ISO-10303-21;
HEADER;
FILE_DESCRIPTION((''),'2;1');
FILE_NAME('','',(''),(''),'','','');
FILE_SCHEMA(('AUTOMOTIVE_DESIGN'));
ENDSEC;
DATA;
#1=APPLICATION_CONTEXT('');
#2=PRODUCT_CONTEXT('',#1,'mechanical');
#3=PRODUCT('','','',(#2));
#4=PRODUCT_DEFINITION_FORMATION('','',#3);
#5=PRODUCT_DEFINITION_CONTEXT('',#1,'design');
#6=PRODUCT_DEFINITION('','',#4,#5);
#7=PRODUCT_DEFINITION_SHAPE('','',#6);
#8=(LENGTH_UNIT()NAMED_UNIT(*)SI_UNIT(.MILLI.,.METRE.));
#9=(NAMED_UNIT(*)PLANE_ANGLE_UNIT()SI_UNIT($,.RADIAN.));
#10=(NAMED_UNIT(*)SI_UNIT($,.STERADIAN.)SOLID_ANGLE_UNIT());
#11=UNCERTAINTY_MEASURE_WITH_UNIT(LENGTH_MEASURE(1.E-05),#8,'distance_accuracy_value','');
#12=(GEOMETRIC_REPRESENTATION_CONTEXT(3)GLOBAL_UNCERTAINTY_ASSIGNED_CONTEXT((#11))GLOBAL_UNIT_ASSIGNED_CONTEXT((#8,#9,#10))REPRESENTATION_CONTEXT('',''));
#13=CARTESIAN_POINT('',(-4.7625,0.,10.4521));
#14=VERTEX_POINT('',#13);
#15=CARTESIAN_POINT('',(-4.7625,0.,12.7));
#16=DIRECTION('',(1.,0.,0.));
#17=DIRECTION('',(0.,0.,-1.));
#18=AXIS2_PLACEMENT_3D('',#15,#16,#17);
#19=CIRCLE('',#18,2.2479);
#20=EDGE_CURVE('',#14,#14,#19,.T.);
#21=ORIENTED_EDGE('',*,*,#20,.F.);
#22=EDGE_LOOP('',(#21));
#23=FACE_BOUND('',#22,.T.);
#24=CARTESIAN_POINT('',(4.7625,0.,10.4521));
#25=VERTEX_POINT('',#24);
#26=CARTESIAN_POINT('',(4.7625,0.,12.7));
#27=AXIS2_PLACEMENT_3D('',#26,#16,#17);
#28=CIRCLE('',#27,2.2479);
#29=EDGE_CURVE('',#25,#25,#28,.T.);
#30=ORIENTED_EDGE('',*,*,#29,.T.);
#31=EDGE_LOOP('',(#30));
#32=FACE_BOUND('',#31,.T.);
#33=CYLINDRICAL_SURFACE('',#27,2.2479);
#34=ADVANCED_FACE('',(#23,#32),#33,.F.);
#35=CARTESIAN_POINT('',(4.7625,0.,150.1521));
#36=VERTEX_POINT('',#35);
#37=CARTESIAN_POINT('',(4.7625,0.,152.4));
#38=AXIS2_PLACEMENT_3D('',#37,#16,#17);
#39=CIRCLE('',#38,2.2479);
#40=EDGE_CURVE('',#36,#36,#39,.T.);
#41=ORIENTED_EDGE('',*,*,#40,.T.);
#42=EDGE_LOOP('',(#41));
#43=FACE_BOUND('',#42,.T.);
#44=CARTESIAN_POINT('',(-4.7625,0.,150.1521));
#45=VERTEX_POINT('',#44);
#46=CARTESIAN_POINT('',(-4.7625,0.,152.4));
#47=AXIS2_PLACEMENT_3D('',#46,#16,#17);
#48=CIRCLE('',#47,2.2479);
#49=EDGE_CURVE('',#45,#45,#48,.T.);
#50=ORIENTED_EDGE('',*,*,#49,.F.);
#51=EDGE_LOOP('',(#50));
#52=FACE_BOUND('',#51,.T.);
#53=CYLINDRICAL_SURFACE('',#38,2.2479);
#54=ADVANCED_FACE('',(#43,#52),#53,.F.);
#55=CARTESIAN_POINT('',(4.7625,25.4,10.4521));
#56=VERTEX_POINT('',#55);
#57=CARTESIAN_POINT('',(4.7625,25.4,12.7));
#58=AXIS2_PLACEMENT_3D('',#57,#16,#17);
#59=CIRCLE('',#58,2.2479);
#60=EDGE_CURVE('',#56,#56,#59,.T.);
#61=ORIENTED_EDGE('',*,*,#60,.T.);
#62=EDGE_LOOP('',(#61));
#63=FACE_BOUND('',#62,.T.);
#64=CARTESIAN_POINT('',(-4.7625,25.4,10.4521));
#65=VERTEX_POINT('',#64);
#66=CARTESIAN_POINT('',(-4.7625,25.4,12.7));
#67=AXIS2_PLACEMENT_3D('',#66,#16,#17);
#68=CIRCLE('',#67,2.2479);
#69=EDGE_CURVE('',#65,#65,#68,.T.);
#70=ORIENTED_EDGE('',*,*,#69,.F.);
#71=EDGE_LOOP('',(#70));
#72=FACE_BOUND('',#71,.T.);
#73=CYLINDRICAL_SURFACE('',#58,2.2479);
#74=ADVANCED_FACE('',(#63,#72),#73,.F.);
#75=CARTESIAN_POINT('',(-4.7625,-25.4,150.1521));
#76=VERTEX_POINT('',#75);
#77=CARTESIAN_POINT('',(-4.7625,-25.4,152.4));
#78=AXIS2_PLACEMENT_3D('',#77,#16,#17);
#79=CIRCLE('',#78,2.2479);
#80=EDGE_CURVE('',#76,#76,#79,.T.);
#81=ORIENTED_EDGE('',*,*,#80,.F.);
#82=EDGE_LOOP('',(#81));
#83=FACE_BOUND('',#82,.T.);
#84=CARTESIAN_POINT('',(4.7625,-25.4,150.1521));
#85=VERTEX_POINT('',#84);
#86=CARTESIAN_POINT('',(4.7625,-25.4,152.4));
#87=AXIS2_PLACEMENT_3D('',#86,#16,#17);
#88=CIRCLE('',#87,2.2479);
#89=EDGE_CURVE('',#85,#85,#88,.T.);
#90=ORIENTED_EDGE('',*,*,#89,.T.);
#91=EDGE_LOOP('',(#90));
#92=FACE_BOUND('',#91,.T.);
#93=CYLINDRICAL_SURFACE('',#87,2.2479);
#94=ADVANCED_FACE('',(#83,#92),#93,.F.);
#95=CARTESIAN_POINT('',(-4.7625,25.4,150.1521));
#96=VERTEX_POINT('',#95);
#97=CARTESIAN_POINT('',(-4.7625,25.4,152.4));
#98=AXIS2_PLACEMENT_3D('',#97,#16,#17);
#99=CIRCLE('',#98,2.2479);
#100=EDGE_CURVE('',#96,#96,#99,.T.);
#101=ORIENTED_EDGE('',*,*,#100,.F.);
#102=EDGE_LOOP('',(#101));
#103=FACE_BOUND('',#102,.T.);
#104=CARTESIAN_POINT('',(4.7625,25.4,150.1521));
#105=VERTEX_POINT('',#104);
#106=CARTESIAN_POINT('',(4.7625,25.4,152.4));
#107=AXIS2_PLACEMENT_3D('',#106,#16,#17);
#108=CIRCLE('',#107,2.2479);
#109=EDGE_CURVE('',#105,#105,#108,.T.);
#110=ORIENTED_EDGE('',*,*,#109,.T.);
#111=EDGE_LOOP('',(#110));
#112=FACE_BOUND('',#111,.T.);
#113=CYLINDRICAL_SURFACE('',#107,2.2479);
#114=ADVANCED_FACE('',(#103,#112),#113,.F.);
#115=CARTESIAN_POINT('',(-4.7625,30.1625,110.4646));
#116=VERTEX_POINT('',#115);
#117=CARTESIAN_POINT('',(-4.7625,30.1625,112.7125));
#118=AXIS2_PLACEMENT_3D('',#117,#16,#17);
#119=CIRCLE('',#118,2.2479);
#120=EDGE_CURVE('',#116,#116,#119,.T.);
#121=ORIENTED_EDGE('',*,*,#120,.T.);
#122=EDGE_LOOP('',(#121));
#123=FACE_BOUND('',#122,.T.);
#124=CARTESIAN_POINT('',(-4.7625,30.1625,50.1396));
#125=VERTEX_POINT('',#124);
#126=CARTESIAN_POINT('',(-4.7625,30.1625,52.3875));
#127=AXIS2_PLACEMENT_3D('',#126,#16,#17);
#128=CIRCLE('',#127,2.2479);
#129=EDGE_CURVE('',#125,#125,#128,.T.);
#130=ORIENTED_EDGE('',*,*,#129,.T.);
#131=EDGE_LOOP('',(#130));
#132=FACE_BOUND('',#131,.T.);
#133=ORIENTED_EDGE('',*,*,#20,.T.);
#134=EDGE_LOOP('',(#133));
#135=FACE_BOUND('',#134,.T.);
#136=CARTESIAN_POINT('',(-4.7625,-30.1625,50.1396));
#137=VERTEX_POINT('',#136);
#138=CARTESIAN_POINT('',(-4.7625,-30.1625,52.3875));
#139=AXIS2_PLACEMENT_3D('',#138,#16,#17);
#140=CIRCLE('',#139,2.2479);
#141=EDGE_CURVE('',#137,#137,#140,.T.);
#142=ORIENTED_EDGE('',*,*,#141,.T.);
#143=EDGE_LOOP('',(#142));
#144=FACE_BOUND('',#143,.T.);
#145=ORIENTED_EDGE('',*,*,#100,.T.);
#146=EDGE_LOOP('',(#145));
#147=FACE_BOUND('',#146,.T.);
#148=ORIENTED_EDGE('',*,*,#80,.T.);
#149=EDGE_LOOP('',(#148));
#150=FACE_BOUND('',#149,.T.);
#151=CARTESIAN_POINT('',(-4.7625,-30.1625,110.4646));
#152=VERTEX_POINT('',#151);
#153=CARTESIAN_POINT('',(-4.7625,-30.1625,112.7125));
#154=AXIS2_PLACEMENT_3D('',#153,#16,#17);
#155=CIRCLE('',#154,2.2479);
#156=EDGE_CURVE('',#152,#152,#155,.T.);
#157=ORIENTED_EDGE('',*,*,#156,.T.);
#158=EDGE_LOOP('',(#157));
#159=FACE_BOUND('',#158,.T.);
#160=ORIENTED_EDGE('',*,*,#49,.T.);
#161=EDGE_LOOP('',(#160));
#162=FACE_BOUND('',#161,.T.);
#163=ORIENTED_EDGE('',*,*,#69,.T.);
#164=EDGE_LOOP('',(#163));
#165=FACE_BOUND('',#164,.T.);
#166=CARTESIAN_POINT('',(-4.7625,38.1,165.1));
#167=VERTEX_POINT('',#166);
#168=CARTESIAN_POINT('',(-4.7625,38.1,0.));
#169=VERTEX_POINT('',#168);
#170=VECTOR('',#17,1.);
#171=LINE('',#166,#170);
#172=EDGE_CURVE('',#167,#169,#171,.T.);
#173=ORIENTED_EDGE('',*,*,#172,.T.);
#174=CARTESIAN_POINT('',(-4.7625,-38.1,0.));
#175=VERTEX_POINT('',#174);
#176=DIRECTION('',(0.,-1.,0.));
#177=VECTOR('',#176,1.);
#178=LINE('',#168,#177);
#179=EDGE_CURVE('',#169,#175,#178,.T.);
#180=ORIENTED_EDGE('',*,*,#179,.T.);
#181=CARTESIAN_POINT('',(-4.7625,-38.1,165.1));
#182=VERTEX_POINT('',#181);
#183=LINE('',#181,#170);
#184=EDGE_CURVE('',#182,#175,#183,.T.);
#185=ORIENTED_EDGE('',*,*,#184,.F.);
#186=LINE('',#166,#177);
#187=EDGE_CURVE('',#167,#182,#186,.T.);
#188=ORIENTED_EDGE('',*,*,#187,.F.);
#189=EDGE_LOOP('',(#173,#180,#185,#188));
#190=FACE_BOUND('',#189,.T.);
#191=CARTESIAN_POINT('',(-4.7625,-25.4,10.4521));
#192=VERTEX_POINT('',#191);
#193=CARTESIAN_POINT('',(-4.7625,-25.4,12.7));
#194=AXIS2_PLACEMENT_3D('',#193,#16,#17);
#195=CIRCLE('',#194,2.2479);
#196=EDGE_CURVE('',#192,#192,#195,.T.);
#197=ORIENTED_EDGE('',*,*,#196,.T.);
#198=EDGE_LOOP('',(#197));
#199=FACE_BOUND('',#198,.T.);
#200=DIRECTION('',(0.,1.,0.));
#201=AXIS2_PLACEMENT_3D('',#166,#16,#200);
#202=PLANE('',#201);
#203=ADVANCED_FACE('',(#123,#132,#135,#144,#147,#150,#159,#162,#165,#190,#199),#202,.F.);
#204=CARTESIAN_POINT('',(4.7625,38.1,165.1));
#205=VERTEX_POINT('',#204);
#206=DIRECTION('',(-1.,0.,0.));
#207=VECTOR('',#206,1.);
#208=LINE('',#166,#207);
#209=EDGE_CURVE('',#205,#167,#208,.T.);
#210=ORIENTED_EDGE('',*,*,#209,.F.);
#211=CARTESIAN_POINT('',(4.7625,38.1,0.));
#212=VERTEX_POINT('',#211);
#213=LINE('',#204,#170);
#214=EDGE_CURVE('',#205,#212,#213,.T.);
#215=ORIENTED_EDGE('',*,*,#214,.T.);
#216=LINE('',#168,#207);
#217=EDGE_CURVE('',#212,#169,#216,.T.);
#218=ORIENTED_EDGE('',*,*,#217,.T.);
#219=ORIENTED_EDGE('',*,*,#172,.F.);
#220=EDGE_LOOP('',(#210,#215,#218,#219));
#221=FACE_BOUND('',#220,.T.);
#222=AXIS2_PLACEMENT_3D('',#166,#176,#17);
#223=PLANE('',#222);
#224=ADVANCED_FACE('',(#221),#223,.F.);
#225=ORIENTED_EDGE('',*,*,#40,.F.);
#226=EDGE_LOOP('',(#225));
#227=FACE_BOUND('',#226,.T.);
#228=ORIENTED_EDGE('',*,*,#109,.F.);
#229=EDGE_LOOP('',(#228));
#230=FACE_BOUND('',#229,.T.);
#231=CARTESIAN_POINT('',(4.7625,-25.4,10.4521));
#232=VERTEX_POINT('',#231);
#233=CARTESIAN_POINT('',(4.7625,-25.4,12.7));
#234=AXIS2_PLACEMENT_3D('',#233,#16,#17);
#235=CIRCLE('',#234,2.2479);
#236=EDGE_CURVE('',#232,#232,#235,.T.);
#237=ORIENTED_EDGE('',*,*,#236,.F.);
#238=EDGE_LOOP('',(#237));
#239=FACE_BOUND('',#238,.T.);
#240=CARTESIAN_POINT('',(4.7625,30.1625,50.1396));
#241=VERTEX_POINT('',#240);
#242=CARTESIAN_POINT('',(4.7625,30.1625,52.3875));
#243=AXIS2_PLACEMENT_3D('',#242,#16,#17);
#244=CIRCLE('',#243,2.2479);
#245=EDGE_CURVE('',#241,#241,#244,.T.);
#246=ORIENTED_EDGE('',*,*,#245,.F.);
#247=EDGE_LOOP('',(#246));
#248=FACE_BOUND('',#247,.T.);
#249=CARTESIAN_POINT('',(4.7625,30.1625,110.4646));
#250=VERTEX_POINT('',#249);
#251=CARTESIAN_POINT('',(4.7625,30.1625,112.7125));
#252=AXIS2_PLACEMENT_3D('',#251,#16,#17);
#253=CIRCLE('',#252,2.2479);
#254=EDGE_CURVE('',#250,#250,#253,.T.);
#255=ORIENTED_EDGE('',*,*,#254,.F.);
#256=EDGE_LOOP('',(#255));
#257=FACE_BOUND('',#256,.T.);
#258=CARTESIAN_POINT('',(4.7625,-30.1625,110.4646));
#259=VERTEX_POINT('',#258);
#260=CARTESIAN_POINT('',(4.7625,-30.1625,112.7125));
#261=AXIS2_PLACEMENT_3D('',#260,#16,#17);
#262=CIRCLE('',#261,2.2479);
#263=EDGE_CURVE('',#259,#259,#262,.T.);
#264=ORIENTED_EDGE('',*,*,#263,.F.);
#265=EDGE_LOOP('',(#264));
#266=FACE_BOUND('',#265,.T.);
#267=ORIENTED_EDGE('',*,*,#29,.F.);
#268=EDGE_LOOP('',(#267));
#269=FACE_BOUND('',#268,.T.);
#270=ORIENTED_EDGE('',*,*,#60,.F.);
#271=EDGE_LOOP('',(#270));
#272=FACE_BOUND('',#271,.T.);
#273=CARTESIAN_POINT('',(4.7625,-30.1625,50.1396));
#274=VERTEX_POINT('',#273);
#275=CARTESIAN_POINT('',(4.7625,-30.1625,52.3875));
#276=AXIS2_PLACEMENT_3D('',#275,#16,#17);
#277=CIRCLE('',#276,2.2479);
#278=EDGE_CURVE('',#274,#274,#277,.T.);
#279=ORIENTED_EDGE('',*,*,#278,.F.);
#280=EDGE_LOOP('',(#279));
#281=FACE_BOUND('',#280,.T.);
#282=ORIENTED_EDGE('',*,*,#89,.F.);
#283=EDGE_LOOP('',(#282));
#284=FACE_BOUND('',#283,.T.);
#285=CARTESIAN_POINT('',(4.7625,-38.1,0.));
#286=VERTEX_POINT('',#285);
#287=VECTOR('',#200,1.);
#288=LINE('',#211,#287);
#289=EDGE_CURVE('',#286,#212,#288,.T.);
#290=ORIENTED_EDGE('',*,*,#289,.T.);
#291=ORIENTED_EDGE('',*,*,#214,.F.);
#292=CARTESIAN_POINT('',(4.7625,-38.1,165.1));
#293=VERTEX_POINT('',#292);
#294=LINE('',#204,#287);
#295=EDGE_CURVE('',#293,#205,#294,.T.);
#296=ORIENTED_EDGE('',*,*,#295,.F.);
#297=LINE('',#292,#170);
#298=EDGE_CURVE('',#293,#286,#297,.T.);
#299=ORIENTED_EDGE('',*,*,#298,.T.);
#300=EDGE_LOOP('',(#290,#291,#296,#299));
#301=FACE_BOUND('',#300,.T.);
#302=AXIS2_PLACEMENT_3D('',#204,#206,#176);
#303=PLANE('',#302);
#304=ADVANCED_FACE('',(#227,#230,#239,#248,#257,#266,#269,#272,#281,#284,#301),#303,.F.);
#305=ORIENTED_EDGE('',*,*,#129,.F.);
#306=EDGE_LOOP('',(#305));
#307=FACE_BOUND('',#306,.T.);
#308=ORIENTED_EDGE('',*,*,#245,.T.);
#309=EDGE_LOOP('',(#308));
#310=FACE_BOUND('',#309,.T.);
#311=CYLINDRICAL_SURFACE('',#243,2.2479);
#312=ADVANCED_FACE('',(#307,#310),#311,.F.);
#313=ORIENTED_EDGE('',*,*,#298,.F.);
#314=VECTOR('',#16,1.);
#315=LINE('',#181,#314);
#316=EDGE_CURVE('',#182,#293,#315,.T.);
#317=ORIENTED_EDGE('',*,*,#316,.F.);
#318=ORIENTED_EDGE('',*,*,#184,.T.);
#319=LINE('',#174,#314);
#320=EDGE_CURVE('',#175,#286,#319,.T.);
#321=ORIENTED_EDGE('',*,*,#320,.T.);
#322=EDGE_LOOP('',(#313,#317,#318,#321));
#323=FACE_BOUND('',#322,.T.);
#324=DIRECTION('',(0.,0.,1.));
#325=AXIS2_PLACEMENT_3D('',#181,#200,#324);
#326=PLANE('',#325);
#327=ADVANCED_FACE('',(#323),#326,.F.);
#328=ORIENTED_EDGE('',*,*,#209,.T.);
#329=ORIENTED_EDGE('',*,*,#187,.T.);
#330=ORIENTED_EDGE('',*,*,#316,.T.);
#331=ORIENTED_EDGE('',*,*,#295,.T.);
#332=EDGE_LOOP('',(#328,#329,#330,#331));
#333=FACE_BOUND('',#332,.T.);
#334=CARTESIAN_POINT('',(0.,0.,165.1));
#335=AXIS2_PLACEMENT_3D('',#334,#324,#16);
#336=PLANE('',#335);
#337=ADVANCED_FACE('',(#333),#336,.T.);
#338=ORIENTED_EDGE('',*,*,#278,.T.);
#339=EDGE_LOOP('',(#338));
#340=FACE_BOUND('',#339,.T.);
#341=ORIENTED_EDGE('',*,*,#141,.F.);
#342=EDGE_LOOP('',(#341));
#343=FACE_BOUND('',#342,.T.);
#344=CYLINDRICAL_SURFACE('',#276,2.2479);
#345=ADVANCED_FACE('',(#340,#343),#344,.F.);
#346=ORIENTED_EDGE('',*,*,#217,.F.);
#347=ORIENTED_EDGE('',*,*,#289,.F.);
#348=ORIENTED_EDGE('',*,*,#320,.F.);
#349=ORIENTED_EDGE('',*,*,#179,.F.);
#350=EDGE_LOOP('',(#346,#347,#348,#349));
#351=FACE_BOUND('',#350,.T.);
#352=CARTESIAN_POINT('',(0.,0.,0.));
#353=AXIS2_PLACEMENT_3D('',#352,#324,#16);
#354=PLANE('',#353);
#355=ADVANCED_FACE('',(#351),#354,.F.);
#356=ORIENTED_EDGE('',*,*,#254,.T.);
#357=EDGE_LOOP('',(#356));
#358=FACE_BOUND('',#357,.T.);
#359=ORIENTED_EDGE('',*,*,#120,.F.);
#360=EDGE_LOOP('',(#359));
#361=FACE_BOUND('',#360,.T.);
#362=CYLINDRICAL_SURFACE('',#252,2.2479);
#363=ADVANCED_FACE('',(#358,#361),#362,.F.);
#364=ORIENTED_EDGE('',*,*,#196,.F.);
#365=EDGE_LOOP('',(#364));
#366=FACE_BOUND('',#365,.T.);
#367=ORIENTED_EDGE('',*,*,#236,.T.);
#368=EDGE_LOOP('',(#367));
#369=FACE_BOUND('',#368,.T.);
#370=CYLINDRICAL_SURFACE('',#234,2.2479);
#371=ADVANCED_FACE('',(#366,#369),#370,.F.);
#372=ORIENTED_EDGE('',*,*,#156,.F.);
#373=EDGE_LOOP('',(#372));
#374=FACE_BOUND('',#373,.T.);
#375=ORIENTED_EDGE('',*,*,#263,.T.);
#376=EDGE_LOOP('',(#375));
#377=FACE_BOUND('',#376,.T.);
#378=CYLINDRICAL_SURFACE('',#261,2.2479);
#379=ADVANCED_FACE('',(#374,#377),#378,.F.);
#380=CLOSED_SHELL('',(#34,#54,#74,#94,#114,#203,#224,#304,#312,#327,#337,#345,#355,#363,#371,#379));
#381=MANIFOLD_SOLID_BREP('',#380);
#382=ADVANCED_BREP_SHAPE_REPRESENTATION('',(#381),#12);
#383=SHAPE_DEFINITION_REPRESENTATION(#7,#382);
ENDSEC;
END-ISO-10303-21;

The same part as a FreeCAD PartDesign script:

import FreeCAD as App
import Part
import Sketcher
from FreeCAD import Vector
Q = App.Units.Quantity


def add_polygon(sketch, points):
    """Adds a closed chain of lines whose ends are joined by coincident constraints."""
    first, n = sketch.GeometryCount, len(points)
    for a, b in zip(points, points[1:] + points[:1]):
        sketch.addGeometry(Part.LineSegment(App.Vector(*a, 0), App.Vector(*b, 0)), False)
    for i in range(n):
        sketch.addConstraint(Sketcher.Constraint("Coincident", first + i, 2, first + (i + 1) % n, 1))

doc = App.newDocument("Part")
body = doc.addObject("PartDesign::Body", "Body")

# Sketch on XY plane
sketch1 = body.newObject("Sketcher::SketchObject", "Sketch")
sketch1.AttachmentSupport = (doc.getObject("XY_Plane"), [""])
sketch1.MapMode = "FlatFace"
add_polygon(sketch1, [(-5, 38), (-5, -38), (5, -38), (5, 38)])  # lines 0-3
sketch1.addConstraint(Sketcher.Constraint("Vertical", 0))
sketch1.addConstraint(Sketcher.Constraint("Horizontal", 1))
sketch1.addConstraint(Sketcher.Constraint("Vertical", 2))
sketch1.addConstraint(Sketcher.Constraint("Horizontal", 3))
sketch1.addConstraint(Sketcher.Constraint("Symmetric", 0, 2, 2, 2, -1, 1))
sketch1.addConstraint(Sketcher.Constraint("DistanceY", 0, 2, 0, 1, Q("3 in")))
sketch1.addConstraint(Sketcher.Constraint("DistanceX", 1, 1, 1, 2, Q("0.375 in")))
pad1 = body.newObject("PartDesign::Pad", "Pad")
pad1.Profile = sketch1
pad1.Length = Q("6.5 in")

# Sketch on YZ plane
sketch2 = body.newObject("Sketcher::SketchObject", "Sketch001")
sketch2.AttachmentSupport = (doc.getObject("YZ_Plane"), [""])
sketch2.MapMode = "FlatFace"
sketch2.AttachmentOffset = App.Placement(Vector(0, 0, 0.1875 * 25.4), App.Rotation())
sketch2.addGeometry(Part.Circle(Vector(-30.2, 52.4, 0), Vector(0, 0, 1), 2.2), False)
sketch2.addGeometry(Part.Circle(Vector(30.2, 112.7, 0), Vector(0, 0, 1), 2.2), False)
sketch2.addGeometry(Part.Circle(Vector(-30.2, 112.7, 0), Vector(0, 0, 1), 2.2), False)
sketch2.addGeometry(Part.Circle(Vector(30.2, 52.4, 0), Vector(0, 0, 1), 2.2), False)
sketch2.addConstraint(Sketcher.Constraint("Equal", 0, 1))
sketch2.addConstraint(Sketcher.Constraint("Equal", 1, 2))
sketch2.addConstraint(Sketcher.Constraint("Equal", 2, 3))
sketch2.addConstraint(Sketcher.Constraint("Symmetric", 1, 3, 2, 3, -2))
sketch2.addConstraint(Sketcher.Constraint("Symmetric", 0, 3, 3, 3, -2))
sketch2.addConstraint(Sketcher.Constraint("Vertical", 0, 3, 2, 3))
sketch2.addConstraint(Sketcher.Constraint("Diameter", 0, Q("0.177 in")))
sketch2.addConstraint(Sketcher.Constraint("DistanceX", 0, 3, -1, 1, Q("1.1875 in")))
sketch2.addConstraint(Sketcher.Constraint("DistanceY", -1, 1, 0, 3, Q("2.0625 in")))
sketch2.addConstraint(Sketcher.Constraint("DistanceY", -1, 1, 1, 3, Q("4.4375 in")))
doc.recompute()
hole = body.newObject("PartDesign::Hole", "Hole")
hole.Profile = sketch2
hole.ThreadType = "None"
hole.Diameter = Q("0.177 in")
hole.DepthType = "ThroughAll"

# Sketch on YZ plane
sketch3 = body.newObject("Sketcher::SketchObject", "Sketch002")
sketch3.AttachmentSupport = (doc.getObject("YZ_Plane"), [""])
sketch3.MapMode = "FlatFace"
sketch3.AttachmentOffset = App.Placement(Vector(0, 0, 0.1875 * 25.4), App.Rotation())
sketch3.addGeometry(Part.Circle(Vector(25.4, 152.4, 0), Vector(0, 0, 1), 2.2), False)
sketch3.addGeometry(Part.Circle(Vector(0, 152.4, 0), Vector(0, 0, 1), 2.2), False)
sketch3.addGeometry(Part.Circle(Vector(-25.4, 152.4, 0), Vector(0, 0, 1), 2.2), False)
sketch3.addGeometry(Part.Circle(Vector(25.4, 12.7, 0), Vector(0, 0, 1), 2.2), False)
sketch3.addGeometry(Part.Circle(Vector(0, 12.7, 0), Vector(0, 0, 1), 2.2), False)
sketch3.addGeometry(Part.Circle(Vector(-25.4, 12.7, 0), Vector(0, 0, 1), 2.2), False)
sketch3.addConstraint(Sketcher.Constraint("Equal", 0, 1))
sketch3.addConstraint(Sketcher.Constraint("Equal", 1, 2))
sketch3.addConstraint(Sketcher.Constraint("Equal", 2, 3))
sketch3.addConstraint(Sketcher.Constraint("Equal", 3, 4))
sketch3.addConstraint(Sketcher.Constraint("Equal", 4, 5))
sketch3.addConstraint(Sketcher.Constraint("Symmetric", 0, 3, 2, 3, -2))
sketch3.addConstraint(Sketcher.Constraint("Symmetric", 3, 3, 5, 3, -2))
sketch3.addConstraint(Sketcher.Constraint("PointOnObject", 1, 3, -2))
sketch3.addConstraint(Sketcher.Constraint("PointOnObject", 4, 3, -2))
sketch3.addConstraint(Sketcher.Constraint("Horizontal", 0, 3, 1, 3))
sketch3.addConstraint(Sketcher.Constraint("Horizontal", 3, 3, 4, 3))
sketch3.addConstraint(Sketcher.Constraint("Vertical", 0, 3, 3, 3))
sketch3.addConstraint(Sketcher.Constraint("Diameter", 0, Q("0.177 in")))
sketch3.addConstraint(Sketcher.Constraint("DistanceX", -1, 1, 0, 3, Q("1 in")))
sketch3.addConstraint(Sketcher.Constraint("DistanceY", -1, 1, 0, 3, Q("6 in")))
sketch3.addConstraint(Sketcher.Constraint("DistanceY", -1, 1, 3, 3, Q("0.5 in")))
doc.recompute()
hole2 = body.newObject("PartDesign::Hole", "Hole001")
hole2.Profile = sketch3
hole2.ThreadType = "None"
hole2.Diameter = Q("0.177 in")
hole2.DepthType = "ThroughAll"

doc.recompute()
